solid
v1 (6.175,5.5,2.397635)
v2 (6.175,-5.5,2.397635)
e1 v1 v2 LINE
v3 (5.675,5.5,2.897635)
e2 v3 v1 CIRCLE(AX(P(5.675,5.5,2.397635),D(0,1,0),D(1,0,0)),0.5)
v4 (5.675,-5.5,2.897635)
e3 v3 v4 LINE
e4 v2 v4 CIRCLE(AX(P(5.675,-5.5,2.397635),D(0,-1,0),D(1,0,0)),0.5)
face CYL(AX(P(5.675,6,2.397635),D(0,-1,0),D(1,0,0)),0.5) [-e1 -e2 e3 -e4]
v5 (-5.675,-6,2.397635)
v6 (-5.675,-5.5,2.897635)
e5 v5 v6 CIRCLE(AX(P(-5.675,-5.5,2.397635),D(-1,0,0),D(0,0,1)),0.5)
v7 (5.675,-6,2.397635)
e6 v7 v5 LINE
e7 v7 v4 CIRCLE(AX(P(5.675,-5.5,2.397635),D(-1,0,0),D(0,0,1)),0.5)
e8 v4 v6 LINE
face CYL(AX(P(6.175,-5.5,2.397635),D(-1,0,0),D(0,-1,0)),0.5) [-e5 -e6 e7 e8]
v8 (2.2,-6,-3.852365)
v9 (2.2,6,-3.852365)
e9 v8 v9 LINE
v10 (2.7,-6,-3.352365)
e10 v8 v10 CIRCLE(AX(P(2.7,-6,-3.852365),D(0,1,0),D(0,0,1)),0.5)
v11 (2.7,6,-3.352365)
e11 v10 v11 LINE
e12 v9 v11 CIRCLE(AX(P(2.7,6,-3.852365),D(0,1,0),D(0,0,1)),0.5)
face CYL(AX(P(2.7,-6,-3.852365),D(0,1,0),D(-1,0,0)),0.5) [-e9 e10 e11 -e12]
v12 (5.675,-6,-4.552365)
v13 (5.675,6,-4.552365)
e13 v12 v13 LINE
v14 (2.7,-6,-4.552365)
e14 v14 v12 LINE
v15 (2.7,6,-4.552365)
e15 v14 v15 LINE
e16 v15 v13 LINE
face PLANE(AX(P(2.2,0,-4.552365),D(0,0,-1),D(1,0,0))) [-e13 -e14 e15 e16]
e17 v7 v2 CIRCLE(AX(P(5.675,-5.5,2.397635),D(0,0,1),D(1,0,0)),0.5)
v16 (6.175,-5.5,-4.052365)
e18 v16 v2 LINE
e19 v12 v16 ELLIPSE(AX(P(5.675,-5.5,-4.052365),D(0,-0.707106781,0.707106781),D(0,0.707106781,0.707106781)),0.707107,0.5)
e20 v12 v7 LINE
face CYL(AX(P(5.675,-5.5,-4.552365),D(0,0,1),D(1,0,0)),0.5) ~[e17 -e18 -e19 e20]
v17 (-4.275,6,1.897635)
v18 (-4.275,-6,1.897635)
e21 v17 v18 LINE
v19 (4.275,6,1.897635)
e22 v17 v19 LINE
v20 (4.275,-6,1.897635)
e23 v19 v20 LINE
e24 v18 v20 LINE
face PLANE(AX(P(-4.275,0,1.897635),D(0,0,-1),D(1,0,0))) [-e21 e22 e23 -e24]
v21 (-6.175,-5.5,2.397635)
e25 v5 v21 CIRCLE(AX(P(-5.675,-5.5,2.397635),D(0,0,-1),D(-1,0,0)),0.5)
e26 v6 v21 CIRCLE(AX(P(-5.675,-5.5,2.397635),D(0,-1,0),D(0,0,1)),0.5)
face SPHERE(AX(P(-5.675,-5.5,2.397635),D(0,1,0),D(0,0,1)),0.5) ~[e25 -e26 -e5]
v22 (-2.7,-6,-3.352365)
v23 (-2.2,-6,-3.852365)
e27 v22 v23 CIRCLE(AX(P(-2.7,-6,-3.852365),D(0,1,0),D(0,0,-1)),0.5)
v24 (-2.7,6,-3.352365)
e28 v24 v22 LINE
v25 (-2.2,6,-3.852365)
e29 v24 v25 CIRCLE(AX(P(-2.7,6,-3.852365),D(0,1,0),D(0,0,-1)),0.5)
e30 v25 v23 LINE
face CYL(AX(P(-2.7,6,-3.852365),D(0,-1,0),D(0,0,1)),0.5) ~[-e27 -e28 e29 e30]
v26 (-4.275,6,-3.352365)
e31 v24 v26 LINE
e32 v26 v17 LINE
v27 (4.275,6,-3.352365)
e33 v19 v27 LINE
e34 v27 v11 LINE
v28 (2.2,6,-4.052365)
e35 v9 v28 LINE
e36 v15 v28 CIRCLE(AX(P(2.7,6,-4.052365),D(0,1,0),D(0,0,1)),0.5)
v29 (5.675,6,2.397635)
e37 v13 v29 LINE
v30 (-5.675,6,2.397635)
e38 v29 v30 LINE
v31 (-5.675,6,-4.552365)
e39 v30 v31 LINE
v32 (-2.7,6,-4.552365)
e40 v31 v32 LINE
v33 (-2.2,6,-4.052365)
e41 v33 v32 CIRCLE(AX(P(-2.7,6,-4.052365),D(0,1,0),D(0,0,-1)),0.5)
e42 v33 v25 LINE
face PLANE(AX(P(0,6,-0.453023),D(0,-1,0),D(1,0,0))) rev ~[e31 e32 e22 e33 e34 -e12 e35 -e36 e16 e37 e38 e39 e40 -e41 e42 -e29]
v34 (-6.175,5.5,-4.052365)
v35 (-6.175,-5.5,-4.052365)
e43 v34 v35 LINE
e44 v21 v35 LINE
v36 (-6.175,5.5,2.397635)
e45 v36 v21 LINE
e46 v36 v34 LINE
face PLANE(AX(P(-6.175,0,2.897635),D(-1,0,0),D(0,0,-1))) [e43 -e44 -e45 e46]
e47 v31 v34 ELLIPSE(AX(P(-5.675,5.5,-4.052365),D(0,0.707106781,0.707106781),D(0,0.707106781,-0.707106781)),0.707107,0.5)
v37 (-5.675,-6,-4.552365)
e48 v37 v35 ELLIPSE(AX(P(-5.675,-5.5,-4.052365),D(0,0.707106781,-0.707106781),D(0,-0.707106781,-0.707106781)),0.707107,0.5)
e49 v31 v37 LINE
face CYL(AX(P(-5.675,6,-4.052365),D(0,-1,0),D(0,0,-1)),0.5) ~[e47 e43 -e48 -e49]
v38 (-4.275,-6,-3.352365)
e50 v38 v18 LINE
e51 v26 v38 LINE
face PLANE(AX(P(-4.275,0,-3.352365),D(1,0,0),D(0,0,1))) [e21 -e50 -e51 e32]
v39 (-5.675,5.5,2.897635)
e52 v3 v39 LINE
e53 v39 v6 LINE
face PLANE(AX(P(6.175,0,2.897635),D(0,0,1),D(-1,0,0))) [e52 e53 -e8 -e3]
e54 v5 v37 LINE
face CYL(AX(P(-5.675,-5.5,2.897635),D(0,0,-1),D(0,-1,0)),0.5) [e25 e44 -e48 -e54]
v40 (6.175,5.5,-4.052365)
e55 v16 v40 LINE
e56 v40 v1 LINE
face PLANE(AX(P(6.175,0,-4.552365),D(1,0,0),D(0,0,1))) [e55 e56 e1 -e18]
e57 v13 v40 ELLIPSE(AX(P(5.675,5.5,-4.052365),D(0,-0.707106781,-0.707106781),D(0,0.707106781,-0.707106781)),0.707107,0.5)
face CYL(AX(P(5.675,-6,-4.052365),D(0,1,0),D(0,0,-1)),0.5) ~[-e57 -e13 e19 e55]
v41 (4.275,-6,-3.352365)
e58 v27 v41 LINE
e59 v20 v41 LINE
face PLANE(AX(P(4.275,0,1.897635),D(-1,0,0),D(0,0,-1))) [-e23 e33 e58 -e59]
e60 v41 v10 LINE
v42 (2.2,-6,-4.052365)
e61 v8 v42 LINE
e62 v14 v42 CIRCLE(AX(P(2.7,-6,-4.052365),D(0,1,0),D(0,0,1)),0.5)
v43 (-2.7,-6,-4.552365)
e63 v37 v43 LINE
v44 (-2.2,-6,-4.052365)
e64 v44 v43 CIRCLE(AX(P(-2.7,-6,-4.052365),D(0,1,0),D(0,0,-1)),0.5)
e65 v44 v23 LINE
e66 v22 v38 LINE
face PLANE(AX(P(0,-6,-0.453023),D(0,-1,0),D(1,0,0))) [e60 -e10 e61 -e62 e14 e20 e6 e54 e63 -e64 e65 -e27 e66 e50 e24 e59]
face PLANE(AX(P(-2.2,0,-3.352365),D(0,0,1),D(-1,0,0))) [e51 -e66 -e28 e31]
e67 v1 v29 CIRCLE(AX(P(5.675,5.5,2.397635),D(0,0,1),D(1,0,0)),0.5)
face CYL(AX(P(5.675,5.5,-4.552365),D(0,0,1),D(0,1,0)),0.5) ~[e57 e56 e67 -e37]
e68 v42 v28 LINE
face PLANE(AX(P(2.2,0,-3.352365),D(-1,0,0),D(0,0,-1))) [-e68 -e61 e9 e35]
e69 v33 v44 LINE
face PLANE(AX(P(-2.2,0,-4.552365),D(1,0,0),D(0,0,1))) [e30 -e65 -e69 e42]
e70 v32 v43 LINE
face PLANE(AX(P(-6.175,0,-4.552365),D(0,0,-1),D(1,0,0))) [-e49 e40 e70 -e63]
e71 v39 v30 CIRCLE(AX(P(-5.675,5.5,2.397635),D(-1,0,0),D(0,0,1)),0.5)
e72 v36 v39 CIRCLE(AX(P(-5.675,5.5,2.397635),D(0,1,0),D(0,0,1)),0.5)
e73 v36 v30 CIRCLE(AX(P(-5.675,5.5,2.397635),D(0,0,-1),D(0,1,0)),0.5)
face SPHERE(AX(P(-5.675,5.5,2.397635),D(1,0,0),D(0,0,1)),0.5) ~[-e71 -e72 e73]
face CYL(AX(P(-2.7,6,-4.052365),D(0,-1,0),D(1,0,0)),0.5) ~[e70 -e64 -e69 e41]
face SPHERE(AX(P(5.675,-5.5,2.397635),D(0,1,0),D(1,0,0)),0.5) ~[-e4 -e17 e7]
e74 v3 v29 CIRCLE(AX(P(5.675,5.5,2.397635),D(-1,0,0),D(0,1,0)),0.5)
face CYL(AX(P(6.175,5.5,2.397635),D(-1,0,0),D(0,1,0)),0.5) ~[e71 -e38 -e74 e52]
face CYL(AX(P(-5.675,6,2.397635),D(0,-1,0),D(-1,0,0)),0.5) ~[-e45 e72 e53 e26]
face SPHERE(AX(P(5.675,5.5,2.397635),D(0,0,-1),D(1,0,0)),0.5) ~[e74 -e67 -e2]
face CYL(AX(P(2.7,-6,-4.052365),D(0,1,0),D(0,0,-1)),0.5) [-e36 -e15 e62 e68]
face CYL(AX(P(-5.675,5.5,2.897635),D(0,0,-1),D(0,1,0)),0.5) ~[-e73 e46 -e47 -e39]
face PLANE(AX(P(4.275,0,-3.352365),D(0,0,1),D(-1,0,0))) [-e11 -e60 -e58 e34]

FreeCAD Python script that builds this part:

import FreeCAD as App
import Part
import Sketcher

V = App.Vector


def edges_at(feature, points):
    """Names of the edges that pass closest to the given points."""
    edges = feature.Shape.Edges
    near = lambda p: min(range(len(edges)), key=lambda i: edges[i].distToShape(Part.Vertex(*p))[0])
    return sorted({f"Edge{near(p) + 1}" for p in points})


def add_polygon(sketch, points):
    """Adds a closed chain of lines whose ends are joined by coincident constraints."""
    first, n = sketch.GeometryCount, len(points)
    for a, b in zip(points, points[1:] + points[:1]):
        sketch.addGeometry(Part.LineSegment(App.Vector(*a, 0), App.Vector(*b, 0)), False)
    for i in range(n):
        sketch.addConstraint(Sketcher.Constraint("Coincident", first + i, 2, first + (i + 1) % n, 1))

doc = App.newDocument("Part")
body = doc.addObject("PartDesign::Body", "Body")

sketch1 = body.newObject("Sketcher::SketchObject", "Sketch")
sketch1.AttachmentSupport = (doc.getObject("XZ_Plane"), [""])
sketch1.MapMode = "FlatFace"
add_polygon(sketch1, [(6.2, -4.6), (6.2, 2.9), (-6.2, 2.9), (-6.2, -4.6), (-2.2, -4.6), (-2.2, -3.4), (-4.3, -3.4), (-4.3, 1.9), (4.3, 1.9), (4.3, -3.4), (2.2, -3.4), (2.2, -4.6)])
sketch1.addConstraint([
    Sketcher.Constraint("Vertical", 0),
    Sketcher.Constraint("Horizontal", 1),
    Sketcher.Constraint("Vertical", 2),
    Sketcher.Constraint("Horizontal", 3),
    Sketcher.Constraint("Vertical", 4),
    Sketcher.Constraint("Horizontal", 5),
    Sketcher.Constraint("Vertical", 6),
    Sketcher.Constraint("Horizontal", 7),
    Sketcher.Constraint("Vertical", 8),
    Sketcher.Constraint("Horizontal", 9),
    Sketcher.Constraint("Vertical", 10),
    Sketcher.Constraint("Horizontal", 11),
    Sketcher.Constraint("Symmetric", 5, 2, 8, 2, -2),
    Sketcher.Constraint("Symmetric", 3, 2, 10, 2, -2),
    Sketcher.Constraint("Equal", 3, 11),
    Sketcher.Constraint("DistanceY", 4, 1, 4, 2, 1.2),
    Sketcher.Constraint("DistanceY", 6, 2, 1, 2, 1.0),
    Sketcher.Constraint("DistanceX", 1, 2, 1, 1, 12.35),
    Sketcher.Constraint("DistanceX", 7, 1, 7, 2, 8.55),
    Sketcher.Constraint("DistanceY", 0, 1, 0, 2, 7.45),
    Sketcher.Constraint("DistanceX", 3, 2, -1, 1, 2.2),
    Sketcher.Constraint("DistanceY", -1, 1, 0, 2, 2.897635),
])
pad1 = body.newObject("PartDesign::Pad", "Pad")
pad1.Profile = sketch1
pad1.Length = 12
pad1.Midplane = True
doc.recompute()

fillet = body.newObject("PartDesign::Fillet", "Fillet")
fillet.Base = (pad1, edges_at(pad1, [
    (-2.2, 0, -4.552),
    (2.2, 0, -4.552),
    (-2.2, 0, -3.352),
    (2.2, 0, -3.352),
]))
fillet.Radius = 0.5
doc.recompute()

fillet2 = body.newObject("PartDesign::Fillet", "Fillet001")
fillet2.Base = (fillet, edges_at(fillet, [
    (6.175, 0, -4.552),
    (6.175, 6, -0.827),
    (6.175, 0, 2.898),
    (6.175, -6, -0.827),
    (0, 6, 2.898),
    (-6.175, 0, 2.898),
    (0, -6, 2.898),
    (-6.175, 6, -0.827),
    (-6.175, 0, -4.552),
    (-6.175, -6, -0.827),
]))
fillet2.Radius = 0.5

doc.recompute()
